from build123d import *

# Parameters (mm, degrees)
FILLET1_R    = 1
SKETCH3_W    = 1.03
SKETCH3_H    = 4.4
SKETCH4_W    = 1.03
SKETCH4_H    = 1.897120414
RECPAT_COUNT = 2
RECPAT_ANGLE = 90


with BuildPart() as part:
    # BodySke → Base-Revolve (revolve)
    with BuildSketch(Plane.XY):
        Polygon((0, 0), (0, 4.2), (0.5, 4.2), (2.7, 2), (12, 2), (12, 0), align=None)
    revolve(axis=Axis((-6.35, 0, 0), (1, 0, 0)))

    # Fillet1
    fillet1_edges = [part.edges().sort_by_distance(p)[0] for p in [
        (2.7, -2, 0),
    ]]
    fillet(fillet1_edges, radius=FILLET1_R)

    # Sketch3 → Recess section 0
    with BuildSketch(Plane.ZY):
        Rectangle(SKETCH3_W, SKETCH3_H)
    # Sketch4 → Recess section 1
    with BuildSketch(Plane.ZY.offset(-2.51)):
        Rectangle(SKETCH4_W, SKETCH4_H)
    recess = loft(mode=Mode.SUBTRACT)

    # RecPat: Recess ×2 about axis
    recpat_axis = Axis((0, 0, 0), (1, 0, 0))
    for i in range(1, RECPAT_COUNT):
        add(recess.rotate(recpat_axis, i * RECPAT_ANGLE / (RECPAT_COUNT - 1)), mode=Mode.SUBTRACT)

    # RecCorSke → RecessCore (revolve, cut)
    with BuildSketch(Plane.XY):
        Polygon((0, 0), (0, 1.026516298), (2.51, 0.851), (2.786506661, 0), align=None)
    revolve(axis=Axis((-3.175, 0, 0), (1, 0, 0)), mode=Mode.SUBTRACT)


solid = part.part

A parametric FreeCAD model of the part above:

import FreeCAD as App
import Part
import Sketcher
from FreeCAD import Vector
Q = App.Units.Quantity


def edges_at(feature, points):
    """Names of the edges that pass closest to the given points."""
    edges = feature.Shape.Edges
    near = lambda p: min(range(len(edges)), key=lambda i: edges[i].distToShape(Part.Vertex(*p))[0])
    return sorted({f"Edge{near(p) + 1}" for p in points})

doc = App.newDocument("Part")
body = doc.addObject("PartDesign::Body", "Body")

sketch1 = body.newObject("Sketcher::SketchObject", "Sketch")
sketch1.AttachmentSupport = (doc.getObject("XY_Plane"), [""])
sketch1.MapMode = "FlatFace"
sketch1.addGeometry(Part.LineSegment(Vector(0, 4.2, 0), Vector(0, 0, 0)), False)
sketch1.addGeometry(Part.LineSegment(Vector(0, 0, 0), Vector(12, 0, 0)), False)
sketch1.addGeometry(Part.LineSegment(Vector(12, 0, 0), Vector(12, 2, 0)), False)
sketch1.addGeometry(Part.LineSegment(Vector(12, 2, 0), Vector(2.7, 2, 0)), False)
sketch1.addGeometry(Part.LineSegment(Vector(2.7, 2, 0), Vector(0.5, 4.2, 0)), False)
sketch1.addGeometry(Part.LineSegment(Vector(0.5, 4.2, 0), Vector(0, 4.2, 0)), False)
sketch1.addConstraint(Sketcher.Constraint("Coincident", 0, 2, 1, 1))
sketch1.addConstraint(Sketcher.Constraint("Coincident", 1, 2, 2, 1))
sketch1.addConstraint(Sketcher.Constraint("Coincident", 2, 2, 3, 1))
sketch1.addConstraint(Sketcher.Constraint("Coincident", 3, 2, 4, 1))
sketch1.addConstraint(Sketcher.Constraint("Coincident", 4, 2, 5, 1))
sketch1.addConstraint(Sketcher.Constraint("Coincident", 5, 2, 0, 1))
sketch1.addConstraint(Sketcher.Constraint("Vertical", 0))
sketch1.addConstraint(Sketcher.Constraint("Horizontal", 1))
sketch1.addConstraint(Sketcher.Constraint("Vertical", 2))
sketch1.addConstraint(Sketcher.Constraint("Horizontal", 3))
sketch1.addConstraint(Sketcher.Constraint("Horizontal", 5))
sketch1.addConstraint(Sketcher.Constraint("Coincident", 0, 2, -1, 1))
sketch1.addConstraint(Sketcher.Constraint("DistanceX", 1, 1, 1, 2, 12.0))
sketch1.addConstraint(Sketcher.Constraint("DistanceY", 2, 1, 2, 2, 2.0))
sketch1.addConstraint(Sketcher.Constraint("Angle", 4, Q("135 deg")))
sketch1.addConstraint(Sketcher.Constraint("DistanceX", 3, 2, 3, 1, 9.3))
sketch1.addConstraint(Sketcher.Constraint("DistanceX", 5, 2, 5, 1, 0.5))
revolution = body.newObject("PartDesign::Revolution", "Revolution")
revolution.Profile = sketch1
revolution.ReferenceAxis = (sketch1, ["H_Axis"])
revolution.Angle = 360
doc.recompute()

fillet = body.newObject("PartDesign::Fillet", "Fillet")
fillet.Base = (revolution, edges_at(revolution, [(2.7, -2, 0)]))
fillet.Radius = 1

sketch2 = body.newObject("Sketcher::SketchObject", "Sketch001")
sketch2.AttachmentSupport = (doc.getObject("YZ_Plane"), [""])
sketch2.MapMode = "FlatFace"
sketch2.addGeometry(Part.LineSegment(Vector(2.2, -0.5, 0), Vector(-2.2, -0.5, 0)), False)
sketch2.addGeometry(Part.LineSegment(Vector(-2.2, -0.5, 0), Vector(-2.2, 0.5, 0)), False)
sketch2.addGeometry(Part.LineSegment(Vector(-2.2, 0.5, 0), Vector(2.2, 0.5, 0)), False)
sketch2.addGeometry(Part.LineSegment(Vector(2.2, 0.5, 0), Vector(2.2, -0.5, 0)), False)
sketch2.addConstraint(Sketcher.Constraint("Coincident", 0, 2, 1, 1))
sketch2.addConstraint(Sketcher.Constraint("Coincident", 1, 2, 2, 1))
sketch2.addConstraint(Sketcher.Constraint("Coincident", 2, 2, 3, 1))
sketch2.addConstraint(Sketcher.Constraint("Coincident", 3, 2, 0, 1))
sketch2.addConstraint(Sketcher.Constraint("Horizontal", 0))
sketch2.addConstraint(Sketcher.Constraint("Vertical", 1))
sketch2.addConstraint(Sketcher.Constraint("Horizontal", 2))
sketch2.addConstraint(Sketcher.Constraint("Vertical", 3))
sketch2.addConstraint(Sketcher.Constraint("Symmetric", 0, 2, 2, 2, -1, 1))
sketch2.addConstraint(Sketcher.Constraint("DistanceX", 0, 2, 0, 1, 4.4))
sketch2.addConstraint(Sketcher.Constraint("DistanceY", 1, 1, 1, 2, 1.03))

sketch3 = body.newObject("Sketcher::SketchObject", "Sketch002")
sketch3.AttachmentSupport = (doc.getObject("YZ_Plane"), [""])
sketch3.MapMode = "FlatFace"
sketch3.AttachmentOffset = App.Placement(Vector(0, 0, 2.51), App.Rotation())
sketch3.addGeometry(Part.LineSegment(Vector(0.9, -0.5, 0), Vector(-0.9, -0.5, 0)), False)
sketch3.addGeometry(Part.LineSegment(Vector(-0.9, -0.5, 0), Vector(-0.9, 0.5, 0)), False)
sketch3.addGeometry(Part.LineSegment(Vector(-0.9, 0.5, 0), Vector(0.9, 0.5, 0)), False)
sketch3.addGeometry(Part.LineSegment(Vector(0.9, 0.5, 0), Vector(0.9, -0.5, 0)), False)
sketch3.addConstraint(Sketcher.Constraint("Coincident", 0, 2, 1, 1))
sketch3.addConstraint(Sketcher.Constraint("Coincident", 1, 2, 2, 1))
sketch3.addConstraint(Sketcher.Constraint("Coincident", 2, 2, 3, 1))
sketch3.addConstraint(Sketcher.Constraint("Coincident", 3, 2, 0, 1))
sketch3.addConstraint(Sketcher.Constraint("Horizontal", 0))
sketch3.addConstraint(Sketcher.Constraint("Vertical", 1))
sketch3.addConstraint(Sketcher.Constraint("Horizontal", 2))
sketch3.addConstraint(Sketcher.Constraint("Vertical", 3))
sketch3.addConstraint(Sketcher.Constraint("Symmetric", 0, 2, 2, 2, -1, 1))
sketch3.addConstraint(Sketcher.Constraint("DistanceY", 1, 1, 1, 2, 1.03))
sketch3.addConstraint(Sketcher.Constraint("DistanceX", 0, 2, 0, 1, 1.89712))

subtractiveloft = body.newObject("PartDesign::SubtractiveLoft", "SubtractiveLoft")
subtractiveloft.Profile = sketch2
subtractiveloft.Sections = [sketch3]
doc.recompute()

polarpattern = body.newObject("PartDesign::PolarPattern", "PolarPattern")
polarpattern.Originals = [subtractiveloft]
polarpattern.Axis = (doc.getObject("X_Axis"), [""])
polarpattern.Angle = 90
polarpattern.Occurrences = 2
body.Tip = polarpattern

sketch4 = body.newObject("Sketcher::SketchObject", "Sketch003")
sketch4.AttachmentSupport = (doc.getObject("XY_Plane"), [""])
sketch4.MapMode = "FlatFace"
sketch4.addGeometry(Part.LineSegment(Vector(0, 1, 0), Vector(0, 0, 0)), False)
sketch4.addGeometry(Part.LineSegment(Vector(0, 0, 0), Vector(2.8, 0, 0)), False)
sketch4.addGeometry(Part.LineSegment(Vector(2.8, 0, 0), Vector(2.5, 0.9, 0)), False)
sketch4.addGeometry(Part.LineSegment(Vector(2.5, 0.9, 0), Vector(0, 1, 0)), False)
sketch4.addConstraint(Sketcher.Constraint("Coincident", 0, 2, 1, 1))
sketch4.addConstraint(Sketcher.Constraint("Coincident", 1, 2, 2, 1))
sketch4.addConstraint(Sketcher.Constraint("Coincident", 2, 2, 3, 1))
sketch4.addConstraint(Sketcher.Constraint("Coincident", 3, 2, 0, 1))
sketch4.addConstraint(Sketcher.Constraint("Vertical", 0))
sketch4.addConstraint(Sketcher.Constraint("Horizontal", 1))
sketch4.addConstraint(Sketcher.Constraint("Coincident", 0, 2, -1, 1))
sketch4.addConstraint(Sketcher.Constraint("Angle", 2, Q("108 deg")))
sketch4.addConstraint(Sketcher.Constraint("Angle", 3, Q("176 deg")))
sketch4.addConstraint(Sketcher.Constraint("DistanceX", -1, 1, 2, 2, 2.51))
sketch4.addConstraint(Sketcher.Constraint("DistanceY", -1, 1, 2, 2, 0.851))
groove = body.newObject("PartDesign::Groove", "Groove")
groove.Profile = sketch4
groove.ReferenceAxis = (sketch4, ["H_Axis"])
groove.Angle = 360

doc.recompute()
